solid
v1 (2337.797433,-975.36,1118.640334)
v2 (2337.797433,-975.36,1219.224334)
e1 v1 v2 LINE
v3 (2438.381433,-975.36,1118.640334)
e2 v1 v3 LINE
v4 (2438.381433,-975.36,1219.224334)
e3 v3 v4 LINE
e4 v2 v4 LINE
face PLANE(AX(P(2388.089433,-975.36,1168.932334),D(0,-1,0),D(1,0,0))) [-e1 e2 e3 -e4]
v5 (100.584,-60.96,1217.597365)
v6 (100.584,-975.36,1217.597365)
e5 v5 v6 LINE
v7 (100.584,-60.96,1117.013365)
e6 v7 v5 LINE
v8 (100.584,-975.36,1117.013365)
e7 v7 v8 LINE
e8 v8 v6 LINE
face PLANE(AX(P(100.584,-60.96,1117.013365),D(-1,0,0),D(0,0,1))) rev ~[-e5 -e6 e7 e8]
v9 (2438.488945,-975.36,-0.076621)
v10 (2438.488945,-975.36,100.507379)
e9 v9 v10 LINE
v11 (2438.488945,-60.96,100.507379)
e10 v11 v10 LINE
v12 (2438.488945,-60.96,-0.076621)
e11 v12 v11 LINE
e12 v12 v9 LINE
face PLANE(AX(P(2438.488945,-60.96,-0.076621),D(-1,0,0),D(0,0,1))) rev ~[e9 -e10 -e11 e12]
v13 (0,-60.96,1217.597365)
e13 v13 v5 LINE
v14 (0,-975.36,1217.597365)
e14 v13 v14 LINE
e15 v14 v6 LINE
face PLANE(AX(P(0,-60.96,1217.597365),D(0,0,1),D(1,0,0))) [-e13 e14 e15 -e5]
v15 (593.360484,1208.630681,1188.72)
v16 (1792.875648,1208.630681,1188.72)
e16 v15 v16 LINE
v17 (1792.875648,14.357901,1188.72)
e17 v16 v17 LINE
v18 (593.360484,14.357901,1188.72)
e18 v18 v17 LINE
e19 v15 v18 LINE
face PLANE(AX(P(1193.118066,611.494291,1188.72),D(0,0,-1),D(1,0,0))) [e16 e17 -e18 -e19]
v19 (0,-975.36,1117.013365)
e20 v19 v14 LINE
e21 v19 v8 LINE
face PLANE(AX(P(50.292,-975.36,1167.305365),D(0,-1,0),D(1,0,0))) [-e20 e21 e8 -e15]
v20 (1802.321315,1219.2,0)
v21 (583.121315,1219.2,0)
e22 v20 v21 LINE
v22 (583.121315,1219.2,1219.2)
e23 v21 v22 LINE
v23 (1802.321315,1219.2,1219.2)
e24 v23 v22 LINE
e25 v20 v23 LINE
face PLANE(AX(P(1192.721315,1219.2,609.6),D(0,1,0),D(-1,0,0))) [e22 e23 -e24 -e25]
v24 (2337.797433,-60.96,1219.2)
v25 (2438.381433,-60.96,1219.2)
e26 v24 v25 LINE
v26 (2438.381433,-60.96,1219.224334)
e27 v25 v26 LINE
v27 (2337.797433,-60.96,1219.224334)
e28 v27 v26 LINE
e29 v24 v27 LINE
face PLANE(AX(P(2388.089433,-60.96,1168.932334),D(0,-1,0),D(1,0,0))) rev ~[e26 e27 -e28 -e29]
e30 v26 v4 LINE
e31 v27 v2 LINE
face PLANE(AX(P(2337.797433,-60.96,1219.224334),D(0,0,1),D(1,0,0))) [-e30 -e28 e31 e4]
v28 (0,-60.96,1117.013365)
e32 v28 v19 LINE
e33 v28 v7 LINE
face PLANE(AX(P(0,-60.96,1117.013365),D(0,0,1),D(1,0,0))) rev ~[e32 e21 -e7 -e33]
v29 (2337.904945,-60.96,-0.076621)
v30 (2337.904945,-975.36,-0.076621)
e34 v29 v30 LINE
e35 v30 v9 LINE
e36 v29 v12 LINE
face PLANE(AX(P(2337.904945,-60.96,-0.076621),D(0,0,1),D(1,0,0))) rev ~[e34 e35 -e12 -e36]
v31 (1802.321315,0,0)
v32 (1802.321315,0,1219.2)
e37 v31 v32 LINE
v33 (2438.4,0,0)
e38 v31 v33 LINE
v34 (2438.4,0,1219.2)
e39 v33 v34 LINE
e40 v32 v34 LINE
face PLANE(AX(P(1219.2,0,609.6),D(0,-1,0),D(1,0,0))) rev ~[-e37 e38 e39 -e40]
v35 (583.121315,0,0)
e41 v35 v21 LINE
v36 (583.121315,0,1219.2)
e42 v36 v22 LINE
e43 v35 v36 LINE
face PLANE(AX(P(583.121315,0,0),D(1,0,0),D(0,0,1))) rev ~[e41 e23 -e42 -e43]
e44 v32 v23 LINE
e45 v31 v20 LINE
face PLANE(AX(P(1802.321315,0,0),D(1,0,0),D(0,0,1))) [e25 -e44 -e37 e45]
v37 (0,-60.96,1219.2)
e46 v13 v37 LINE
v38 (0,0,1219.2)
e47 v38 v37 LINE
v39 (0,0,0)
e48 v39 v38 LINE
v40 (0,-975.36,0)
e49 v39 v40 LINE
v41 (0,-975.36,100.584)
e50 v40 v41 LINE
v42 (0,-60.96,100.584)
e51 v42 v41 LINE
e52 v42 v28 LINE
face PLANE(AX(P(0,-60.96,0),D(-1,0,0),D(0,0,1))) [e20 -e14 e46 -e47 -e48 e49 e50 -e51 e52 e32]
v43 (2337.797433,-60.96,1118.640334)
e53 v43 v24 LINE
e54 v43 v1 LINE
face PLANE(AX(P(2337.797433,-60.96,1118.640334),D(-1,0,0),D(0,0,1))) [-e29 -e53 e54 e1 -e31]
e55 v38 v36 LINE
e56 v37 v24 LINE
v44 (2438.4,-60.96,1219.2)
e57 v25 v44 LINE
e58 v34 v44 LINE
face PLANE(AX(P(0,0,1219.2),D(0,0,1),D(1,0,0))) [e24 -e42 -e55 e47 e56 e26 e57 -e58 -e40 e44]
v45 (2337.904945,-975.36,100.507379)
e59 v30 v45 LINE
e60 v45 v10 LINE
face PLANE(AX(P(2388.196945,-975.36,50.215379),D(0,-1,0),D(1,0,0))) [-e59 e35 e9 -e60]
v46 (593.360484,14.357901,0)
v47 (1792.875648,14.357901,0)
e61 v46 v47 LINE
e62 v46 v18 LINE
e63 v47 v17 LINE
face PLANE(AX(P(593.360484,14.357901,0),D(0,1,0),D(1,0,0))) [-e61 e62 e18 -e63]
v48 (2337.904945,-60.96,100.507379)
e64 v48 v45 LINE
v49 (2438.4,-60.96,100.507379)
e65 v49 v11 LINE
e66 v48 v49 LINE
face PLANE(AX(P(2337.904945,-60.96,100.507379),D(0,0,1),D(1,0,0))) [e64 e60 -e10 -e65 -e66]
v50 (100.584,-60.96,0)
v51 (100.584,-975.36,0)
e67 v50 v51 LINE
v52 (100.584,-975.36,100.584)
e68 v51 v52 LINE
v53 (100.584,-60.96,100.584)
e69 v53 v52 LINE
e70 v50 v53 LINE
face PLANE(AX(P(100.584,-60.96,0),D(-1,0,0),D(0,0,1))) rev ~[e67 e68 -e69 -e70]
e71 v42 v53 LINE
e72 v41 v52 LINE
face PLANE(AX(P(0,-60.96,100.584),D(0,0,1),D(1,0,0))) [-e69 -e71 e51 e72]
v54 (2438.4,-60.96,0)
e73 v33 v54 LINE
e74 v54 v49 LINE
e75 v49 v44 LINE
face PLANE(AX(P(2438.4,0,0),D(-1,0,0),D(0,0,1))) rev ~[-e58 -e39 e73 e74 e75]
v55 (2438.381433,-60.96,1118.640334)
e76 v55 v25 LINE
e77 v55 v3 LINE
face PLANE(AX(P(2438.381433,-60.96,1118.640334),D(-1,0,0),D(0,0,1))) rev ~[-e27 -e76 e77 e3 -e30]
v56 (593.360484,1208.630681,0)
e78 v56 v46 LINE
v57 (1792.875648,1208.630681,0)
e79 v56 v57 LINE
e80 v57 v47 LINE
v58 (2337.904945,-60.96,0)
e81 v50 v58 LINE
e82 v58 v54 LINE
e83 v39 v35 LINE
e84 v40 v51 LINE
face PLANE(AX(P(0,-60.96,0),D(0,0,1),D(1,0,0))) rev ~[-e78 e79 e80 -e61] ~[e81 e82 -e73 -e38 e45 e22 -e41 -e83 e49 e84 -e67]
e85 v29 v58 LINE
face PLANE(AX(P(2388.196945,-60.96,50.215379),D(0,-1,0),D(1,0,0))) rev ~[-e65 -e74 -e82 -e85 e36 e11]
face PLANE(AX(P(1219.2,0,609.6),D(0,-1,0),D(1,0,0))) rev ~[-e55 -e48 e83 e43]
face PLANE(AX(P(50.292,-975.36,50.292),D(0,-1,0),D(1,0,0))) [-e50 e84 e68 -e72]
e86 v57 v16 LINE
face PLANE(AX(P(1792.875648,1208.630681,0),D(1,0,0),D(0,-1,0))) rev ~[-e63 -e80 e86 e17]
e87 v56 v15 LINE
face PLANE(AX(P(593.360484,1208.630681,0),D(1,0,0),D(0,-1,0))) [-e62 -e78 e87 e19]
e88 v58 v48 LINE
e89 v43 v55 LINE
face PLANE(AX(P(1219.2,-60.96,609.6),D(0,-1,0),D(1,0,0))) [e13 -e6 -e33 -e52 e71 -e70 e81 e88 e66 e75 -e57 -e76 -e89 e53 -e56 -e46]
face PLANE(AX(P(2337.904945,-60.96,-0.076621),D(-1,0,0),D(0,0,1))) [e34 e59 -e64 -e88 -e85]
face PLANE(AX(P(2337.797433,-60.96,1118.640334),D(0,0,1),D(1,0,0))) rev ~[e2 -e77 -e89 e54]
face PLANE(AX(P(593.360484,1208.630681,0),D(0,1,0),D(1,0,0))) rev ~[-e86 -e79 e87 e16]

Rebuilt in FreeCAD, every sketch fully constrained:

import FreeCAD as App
import Part
import Sketcher

V = App.Vector
Q = App.Units.Quantity


def add_polygon(sketch, points):
    """Adds a closed chain of lines whose ends are joined by coincident constraints."""
    first, n = sketch.GeometryCount, len(points)
    for a, b in zip(points, points[1:] + points[:1]):
        sketch.addGeometry(Part.LineSegment(App.Vector(*a, 0), App.Vector(*b, 0)), False)
    for i in range(n):
        sketch.addConstraint(Sketcher.Constraint("Coincident", first + i, 2, first + (i + 1) % n, 1))

doc = App.newDocument("Part")
body = doc.addObject("PartDesign::Body", "Body")

sketch1 = doc.addObject("Sketcher::SketchObject", "Sketch")
body.addObject(sketch1)
sketch1.AttachmentSupport = (doc.XZ_Plane, [""])
sketch1.MapMode = "FlatFace"
add_polygon(sketch1, [(0, 1219), (0, 0), (2438, 0), (2438, 1219)])
sketch1.addConstraint(Sketcher.Constraint("Vertical", 0))
sketch1.addConstraint(Sketcher.Constraint("Horizontal", 1))
sketch1.addConstraint(Sketcher.Constraint("Vertical", 2))
sketch1.addConstraint(Sketcher.Constraint("Horizontal", 3))
sketch1.addConstraint(Sketcher.Constraint("Coincident", 0, 2, -1, 1))
sketch1.addConstraint(Sketcher.Constraint("DistanceX", 1, 1, 1, 2, Q("96 in")))
sketch1.addConstraint(Sketcher.Constraint("DistanceY", 0, 2, 0, 1, Q("48 in")))
pad1 = doc.addObject("PartDesign::Pad", "Pad")
body.addObject(pad1)
pad1.Profile = sketch1
pad1.Length = Q("2.4 in")

sketch2 = doc.addObject("Sketcher::SketchObject", "Sketch001")
body.addObject(sketch2)
sketch2.AttachmentSupport = (doc.XZ_Plane, [""])
sketch2.MapMode = "FlatFace"
sketch2.AttachmentOffset = App.Placement(V(0, 0, 2.4 * 25.4), App.Rotation())
add_polygon(sketch2, [(0, 101), (0, 0), (101, 0), (101, 101)])
add_polygon(sketch2, [(0, 1218), (0, 1117), (101, 1117), (101, 1218)])
add_polygon(sketch2, [(2338, 1219), (2338, 1119), (2438, 1119), (2438, 1219)])
add_polygon(sketch2, [(2338, 101), (2338, 0), (2438, 0), (2438, 101)])
sketch2.addConstraint(Sketcher.Constraint("Vertical", 0))
sketch2.addConstraint(Sketcher.Constraint("Horizontal", 1))
sketch2.addConstraint(Sketcher.Constraint("Vertical", 2))
sketch2.addConstraint(Sketcher.Constraint("Horizontal", 3))
sketch2.addConstraint(Sketcher.Constraint("Vertical", 4))
sketch2.addConstraint(Sketcher.Constraint("Horizontal", 5))
sketch2.addConstraint(Sketcher.Constraint("Vertical", 6))
sketch2.addConstraint(Sketcher.Constraint("Horizontal", 7))
sketch2.addConstraint(Sketcher.Constraint("Vertical", 8))
sketch2.addConstraint(Sketcher.Constraint("Horizontal", 9))
sketch2.addConstraint(Sketcher.Constraint("Vertical", 10))
sketch2.addConstraint(Sketcher.Constraint("Horizontal", 11))
sketch2.addConstraint(Sketcher.Constraint("Vertical", 12))
sketch2.addConstraint(Sketcher.Constraint("Horizontal", 13))
sketch2.addConstraint(Sketcher.Constraint("Vertical", 14))
sketch2.addConstraint(Sketcher.Constraint("Horizontal", 15))
sketch2.addConstraint(Sketcher.Constraint("Coincident", 0, 2, -1, 1))
sketch2.addConstraint(Sketcher.Constraint("PointOnObject", 4, 2, -2))
sketch2.addConstraint(Sketcher.Constraint("Vertical", 2, 2, 5, 2))
sketch2.addConstraint(Sketcher.Constraint("Equal", 7, 9))
sketch2.addConstraint(Sketcher.Constraint("Equal", 11, 13))
sketch2.addConstraint(Sketcher.Constraint("Equal", 15, 0))
sketch2.addConstraint(Sketcher.Constraint("Equal", 2, 4))
sketch2.addConstraint(Sketcher.Constraint("Equal", 6, 8))
sketch2.addConstraint(Sketcher.Constraint("Equal", 10, 12))
sketch2.addConstraint(Sketcher.Constraint("DistanceX", 1, 1, 1, 2, Q("3.96 in")))
sketch2.addConstraint(Sketcher.Constraint("DistanceY", 12, 2, -1, 1, 0.076621))
sketch2.addConstraint(Sketcher.Constraint("DistanceY", 5, 2, 8, 2, 1.626969))
sketch2.addConstraint(Sketcher.Constraint("DistanceX", 8, 2, 13, 2, 100.691512))
sketch2.addConstraint(Sketcher.Constraint("DistanceY", -1, 1, 4, 2, 1117.013365))
sketch2.addConstraint(Sketcher.Constraint("DistanceX", -1, 1, 8, 2, 2337.797433))
pad2 = doc.addObject("PartDesign::Pad", "Pad001")
body.addObject(pad2)
pad2.Profile = sketch2
pad2.Length = Q("36 in")

sketch3 = doc.addObject("Sketcher::SketchObject", "Sketch002")
body.addObject(sketch3)
sketch3.AttachmentSupport = (doc.XZ_Plane, [""])
sketch3.MapMode = "FlatFace"
add_polygon(sketch3, [(1802, 1219), (1802, 0), (583, 0), (583, 1219)])
sketch3.addConstraint(Sketcher.Constraint("Vertical", 0))
sketch3.addConstraint(Sketcher.Constraint("Horizontal", 1))
sketch3.addConstraint(Sketcher.Constraint("Vertical", 2))
sketch3.addConstraint(Sketcher.Constraint("Horizontal", 3))
sketch3.addConstraint(Sketcher.Constraint("PointOnObject", 0, 2, -1))
sketch3.addConstraint(Sketcher.Constraint("Equal", 3, 0))
sketch3.addConstraint(Sketcher.Constraint("DistanceX", 1, 2, 1, 1, Q("48 in")))
sketch3.addConstraint(Sketcher.Constraint("DistanceX", -1, 1, 0, 2, 1802.321315))
pad3 = doc.addObject("PartDesign::Pad", "Pad002")
body.addObject(pad3)
pad3.Profile = sketch3
pad3.Length = Q("48 in")
pad3.Reversed = True

sketch4 = doc.addObject("Sketcher::SketchObject", "Sketch003")
body.addObject(sketch4)
sketch4.AttachmentSupport = (doc.XY_Plane, [""])
sketch4.MapMode = "FlatFace"
add_polygon(sketch4, [(593, 14), (593, 1209), (1793, 1209), (1793, 14)])
sketch4.addConstraint(Sketcher.Constraint("Vertical", 0))
sketch4.addConstraint(Sketcher.Constraint("Horizontal", 1))
sketch4.addConstraint(Sketcher.Constraint("Vertical", 2))
sketch4.addConstraint(Sketcher.Constraint("Horizontal", 3))
sketch4.addConstraint(Sketcher.Constraint("DistanceY", 0, 1, 0, 2, 1194.27278))
sketch4.addConstraint(Sketcher.Constraint("DistanceY", -1, 1, 2, 2, 14.357901))
sketch4.addConstraint(Sketcher.Constraint("DistanceX", 1, 1, 1, 2, 1199.515164))
sketch4.addConstraint(Sketcher.Constraint("DistanceX", -1, 1, 1, 2, 1792.875648))
pocket1 = doc.addObject("PartDesign::Pocket", "Pocket")
body.addObject(pocket1)
pocket1.Profile = sketch4
pocket1.Length = Q("46.8 in")
pocket1.Reversed = True

doc.recompute()
